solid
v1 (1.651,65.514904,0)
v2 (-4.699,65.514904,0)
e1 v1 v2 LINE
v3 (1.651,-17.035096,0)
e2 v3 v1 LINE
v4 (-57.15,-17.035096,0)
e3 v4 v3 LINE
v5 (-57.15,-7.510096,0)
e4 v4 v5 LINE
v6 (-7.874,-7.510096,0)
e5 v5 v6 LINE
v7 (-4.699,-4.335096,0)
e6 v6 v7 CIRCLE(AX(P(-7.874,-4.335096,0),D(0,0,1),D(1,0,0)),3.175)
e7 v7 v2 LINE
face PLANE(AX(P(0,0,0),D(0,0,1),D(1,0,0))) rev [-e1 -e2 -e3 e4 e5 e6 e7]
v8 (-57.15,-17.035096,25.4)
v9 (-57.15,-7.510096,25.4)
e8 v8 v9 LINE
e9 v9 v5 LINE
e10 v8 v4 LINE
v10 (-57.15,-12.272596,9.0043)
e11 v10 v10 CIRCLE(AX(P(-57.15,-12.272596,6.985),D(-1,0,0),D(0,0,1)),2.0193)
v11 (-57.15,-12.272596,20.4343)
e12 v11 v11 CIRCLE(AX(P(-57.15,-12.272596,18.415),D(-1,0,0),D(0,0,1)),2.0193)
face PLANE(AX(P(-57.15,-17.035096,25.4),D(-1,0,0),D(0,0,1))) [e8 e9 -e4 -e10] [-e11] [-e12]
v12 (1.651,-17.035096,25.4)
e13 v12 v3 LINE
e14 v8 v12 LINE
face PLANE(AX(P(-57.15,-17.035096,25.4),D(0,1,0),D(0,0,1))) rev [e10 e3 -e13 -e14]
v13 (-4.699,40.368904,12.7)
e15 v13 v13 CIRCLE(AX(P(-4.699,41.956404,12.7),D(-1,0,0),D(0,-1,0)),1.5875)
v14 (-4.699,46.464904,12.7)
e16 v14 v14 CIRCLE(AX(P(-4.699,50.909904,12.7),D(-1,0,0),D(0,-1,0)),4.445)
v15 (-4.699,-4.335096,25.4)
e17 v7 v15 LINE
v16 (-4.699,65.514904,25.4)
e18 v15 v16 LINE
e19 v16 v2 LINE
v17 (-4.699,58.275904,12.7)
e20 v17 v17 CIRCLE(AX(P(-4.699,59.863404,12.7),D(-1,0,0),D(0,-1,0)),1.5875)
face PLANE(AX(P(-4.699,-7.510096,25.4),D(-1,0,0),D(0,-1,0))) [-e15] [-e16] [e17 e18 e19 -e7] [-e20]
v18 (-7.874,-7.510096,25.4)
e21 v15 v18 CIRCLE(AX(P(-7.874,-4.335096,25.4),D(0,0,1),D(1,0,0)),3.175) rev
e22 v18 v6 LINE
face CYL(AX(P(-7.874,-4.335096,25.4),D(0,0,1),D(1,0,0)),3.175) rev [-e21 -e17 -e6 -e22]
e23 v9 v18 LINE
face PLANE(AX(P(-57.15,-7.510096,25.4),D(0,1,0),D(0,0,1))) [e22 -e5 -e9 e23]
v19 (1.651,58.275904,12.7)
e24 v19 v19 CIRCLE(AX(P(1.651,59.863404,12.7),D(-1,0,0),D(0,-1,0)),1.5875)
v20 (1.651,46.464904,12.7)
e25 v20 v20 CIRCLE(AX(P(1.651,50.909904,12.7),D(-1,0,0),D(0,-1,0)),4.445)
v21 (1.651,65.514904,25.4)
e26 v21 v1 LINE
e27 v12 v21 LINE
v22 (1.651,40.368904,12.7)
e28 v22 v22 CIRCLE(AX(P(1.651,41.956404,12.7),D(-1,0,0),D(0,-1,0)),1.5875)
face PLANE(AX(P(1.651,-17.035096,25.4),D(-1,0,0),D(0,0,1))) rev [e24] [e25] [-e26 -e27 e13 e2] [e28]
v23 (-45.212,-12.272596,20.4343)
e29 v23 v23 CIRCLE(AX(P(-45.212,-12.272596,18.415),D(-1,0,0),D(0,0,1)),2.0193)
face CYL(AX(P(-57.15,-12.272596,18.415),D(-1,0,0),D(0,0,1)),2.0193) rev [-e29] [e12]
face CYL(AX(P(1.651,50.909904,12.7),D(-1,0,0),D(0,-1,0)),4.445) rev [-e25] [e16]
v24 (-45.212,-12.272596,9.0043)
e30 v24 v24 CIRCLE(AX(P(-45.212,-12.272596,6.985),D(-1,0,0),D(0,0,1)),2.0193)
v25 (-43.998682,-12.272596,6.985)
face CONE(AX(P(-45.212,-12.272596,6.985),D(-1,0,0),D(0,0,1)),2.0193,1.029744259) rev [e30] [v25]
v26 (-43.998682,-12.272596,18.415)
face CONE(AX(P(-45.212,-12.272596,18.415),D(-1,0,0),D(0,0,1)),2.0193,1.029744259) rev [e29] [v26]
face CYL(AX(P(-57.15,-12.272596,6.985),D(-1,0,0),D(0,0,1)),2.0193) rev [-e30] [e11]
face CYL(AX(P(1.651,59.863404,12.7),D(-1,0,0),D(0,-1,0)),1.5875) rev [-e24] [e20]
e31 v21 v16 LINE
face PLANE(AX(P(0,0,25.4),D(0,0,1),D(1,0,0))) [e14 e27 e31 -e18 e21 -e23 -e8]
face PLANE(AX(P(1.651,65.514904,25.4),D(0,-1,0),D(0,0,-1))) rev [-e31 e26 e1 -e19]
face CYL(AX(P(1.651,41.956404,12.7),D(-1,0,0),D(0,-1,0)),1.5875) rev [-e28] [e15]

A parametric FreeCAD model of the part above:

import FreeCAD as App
import Part
import Sketcher

V = App.Vector
Q = App.Units.Quantity


def edges_at(feature, points):
    """Names of the edges that pass closest to the given points."""
    edges = feature.Shape.Edges
    near = lambda p: min(range(len(edges)), key=lambda i: edges[i].distToShape(Part.Vertex(*p))[0])
    return sorted({f"Edge{near(p) + 1}" for p in points})


def add_polygon(sketch, points):
    """Adds a closed chain of lines whose ends are joined by coincident constraints."""
    first, n = sketch.GeometryCount, len(points)
    for a, b in zip(points, points[1:] + points[:1]):
        sketch.addGeometry(Part.LineSegment(App.Vector(*a, 0), App.Vector(*b, 0)), False)
    for i in range(n):
        sketch.addConstraint(Sketcher.Constraint("Coincident", first + i, 2, first + (i + 1) % n, 1))

doc = App.newDocument("Part")
body = doc.addObject("PartDesign::Body", "Body")

# Sketch on XY plane
sketch1 = body.newObject("Sketcher::SketchObject", "Sketch")
sketch1.AttachmentSupport = (doc.getObject("XY_Plane"), [""])
sketch1.MapMode = "FlatFace"
add_polygon(sketch1, [(-57.15, -17.035096), (1.651, -17.035096), (1.651, 65.514904), (-4.699, 65.514904), (-4.699, -7.510096), (-57.15, -7.510096)])  # lines 0-5
sketch1.addConstraint(Sketcher.Constraint("Horizontal", 0))
sketch1.addConstraint(Sketcher.Constraint("Vertical", 1))
sketch1.addConstraint(Sketcher.Constraint("Horizontal", 2))
sketch1.addConstraint(Sketcher.Constraint("Vertical", 3))
sketch1.addConstraint(Sketcher.Constraint("Horizontal", 4))
sketch1.addConstraint(Sketcher.Constraint("Vertical", 5))
sketch1.addConstraint(Sketcher.Constraint("DistanceX", 2, 2, 2, 1, Q("0.25 in")))
sketch1.addConstraint(Sketcher.Constraint("DistanceY", 1, 1, 1, 2, Q("3.25 in")))
sketch1.addConstraint(Sketcher.Constraint("DistanceX", 0, 1, 0, 2, Q("2.315 in")))
sketch1.addConstraint(Sketcher.Constraint("DistanceY", 3, 2, 3, 1, Q("2.875 in")))
sketch1.addConstraint(Sketcher.Constraint("DistanceX", 4, 2, -1, 1, Q("2.25 in")))
sketch1.addConstraint(Sketcher.Constraint("DistanceY", 0, 2, -1, 1, Q("17.035096 mm")))
pad1 = body.newObject("PartDesign::Pad", "Pad")
pad1.Profile = sketch1
pad1.Length = Q("1 in")

# Sketch on YZ plane
sketch2 = body.newObject("Sketcher::SketchObject", "Sketch001")
sketch2.AttachmentSupport = (doc.getObject("YZ_Plane"), [""])
sketch2.MapMode = "FlatFace"
sketch2.AttachmentOffset = App.Placement(V(0, 0, -0.185 * 25.4), App.Rotation())
sketch2.addGeometry(Part.Circle(V(50.909904, 12.7, 0), V(0, 0, 1), 4.445), False)
sketch2.addGeometry(Part.Circle(V(59.863404, 12.7, 0), V(0, 0, 1), 1.5875), False)
sketch2.addGeometry(Part.Circle(V(41.956404, 12.7, 0), V(0, 0, 1), 1.5875), False)
sketch2.addConstraint(Sketcher.Constraint("Equal", 1, 2))
sketch2.addConstraint(Sketcher.Constraint("Horizontal", 0, 3, 1, 3))
sketch2.addConstraint(Sketcher.Constraint("Horizontal", 1, 3, 2, 3))
sketch2.addConstraint(Sketcher.Constraint("Diameter", 0, Q("0.35 in")))
sketch2.addConstraint(Sketcher.Constraint("Diameter", 1, Q("0.125 in")))
sketch2.addConstraint(Sketcher.Constraint("DistanceY", -1, 1, 0, 3, Q("0.5 in")))
sketch2.addConstraint(Sketcher.Constraint("DistanceX", 2, 3, 1, 3, Q("0.705 in")))
sketch2.addConstraint(Sketcher.Constraint("DistanceX", 0, 3, 1, 3, Q("0.3525 in")))
sketch2.addConstraint(Sketcher.Constraint("DistanceX", -1, 1, 0, 3, Q("50.909904 mm")))
pocket1 = body.newObject("PartDesign::Pocket", "Pocket")
pocket1.Profile = sketch2
pocket1.Type = "ThroughAll"
pocket1.Reversed = True

# Sketch on YZ plane
sketch3 = body.newObject("Sketcher::SketchObject", "Sketch002")
sketch3.AttachmentSupport = (doc.getObject("YZ_Plane"), [""])
sketch3.MapMode = "FlatFace"
sketch3.AttachmentOffset = App.Placement(V(0, 0, -2.25 * 25.4), App.Rotation())
sketch3.addGeometry(Part.Circle(V(-12.272596, 6.985, 0), V(0, 0, 1), 2.0193), False)
sketch3.addGeometry(Part.Circle(V(-12.272596, 18.415, 0), V(0, 0, 1), 2.0193), False)
sketch3.addConstraint(Sketcher.Constraint("Equal", 0, 1))
sketch3.addConstraint(Sketcher.Constraint("Vertical", 0, 3, 1, 3))
sketch3.addConstraint(Sketcher.Constraint("Diameter", 0, Q("0.159 in")))
sketch3.addConstraint(Sketcher.Constraint("DistanceY", 0, 3, 1, 3, Q("0.45 in")))
sketch3.addConstraint(Sketcher.Constraint("DistanceY", -1, 1, 0, 3, Q("0.275 in")))
sketch3.addConstraint(Sketcher.Constraint("DistanceX", 0, 3, -1, 1, Q("12.272596 mm")))
doc.recompute()
hole = body.newObject("PartDesign::Hole", "Hole")
hole.Profile = sketch3
hole.ThreadType = "None"
hole.Diameter = Q("0.159 in")
hole.DepthType = "Dimension"
hole.Depth = Q("0.47 in")
hole.DrillPoint = "Angled"
hole.DrillPointAngle = 118
hole.Reversed = True
doc.recompute()

fillet = body.newObject("PartDesign::Fillet", "Fillet")
fillet.Base = (hole, edges_at(hole, [(-4.699, -7.51, 12.7)]))
fillet.Radius = Q("0.125 in")

doc.recompute()
